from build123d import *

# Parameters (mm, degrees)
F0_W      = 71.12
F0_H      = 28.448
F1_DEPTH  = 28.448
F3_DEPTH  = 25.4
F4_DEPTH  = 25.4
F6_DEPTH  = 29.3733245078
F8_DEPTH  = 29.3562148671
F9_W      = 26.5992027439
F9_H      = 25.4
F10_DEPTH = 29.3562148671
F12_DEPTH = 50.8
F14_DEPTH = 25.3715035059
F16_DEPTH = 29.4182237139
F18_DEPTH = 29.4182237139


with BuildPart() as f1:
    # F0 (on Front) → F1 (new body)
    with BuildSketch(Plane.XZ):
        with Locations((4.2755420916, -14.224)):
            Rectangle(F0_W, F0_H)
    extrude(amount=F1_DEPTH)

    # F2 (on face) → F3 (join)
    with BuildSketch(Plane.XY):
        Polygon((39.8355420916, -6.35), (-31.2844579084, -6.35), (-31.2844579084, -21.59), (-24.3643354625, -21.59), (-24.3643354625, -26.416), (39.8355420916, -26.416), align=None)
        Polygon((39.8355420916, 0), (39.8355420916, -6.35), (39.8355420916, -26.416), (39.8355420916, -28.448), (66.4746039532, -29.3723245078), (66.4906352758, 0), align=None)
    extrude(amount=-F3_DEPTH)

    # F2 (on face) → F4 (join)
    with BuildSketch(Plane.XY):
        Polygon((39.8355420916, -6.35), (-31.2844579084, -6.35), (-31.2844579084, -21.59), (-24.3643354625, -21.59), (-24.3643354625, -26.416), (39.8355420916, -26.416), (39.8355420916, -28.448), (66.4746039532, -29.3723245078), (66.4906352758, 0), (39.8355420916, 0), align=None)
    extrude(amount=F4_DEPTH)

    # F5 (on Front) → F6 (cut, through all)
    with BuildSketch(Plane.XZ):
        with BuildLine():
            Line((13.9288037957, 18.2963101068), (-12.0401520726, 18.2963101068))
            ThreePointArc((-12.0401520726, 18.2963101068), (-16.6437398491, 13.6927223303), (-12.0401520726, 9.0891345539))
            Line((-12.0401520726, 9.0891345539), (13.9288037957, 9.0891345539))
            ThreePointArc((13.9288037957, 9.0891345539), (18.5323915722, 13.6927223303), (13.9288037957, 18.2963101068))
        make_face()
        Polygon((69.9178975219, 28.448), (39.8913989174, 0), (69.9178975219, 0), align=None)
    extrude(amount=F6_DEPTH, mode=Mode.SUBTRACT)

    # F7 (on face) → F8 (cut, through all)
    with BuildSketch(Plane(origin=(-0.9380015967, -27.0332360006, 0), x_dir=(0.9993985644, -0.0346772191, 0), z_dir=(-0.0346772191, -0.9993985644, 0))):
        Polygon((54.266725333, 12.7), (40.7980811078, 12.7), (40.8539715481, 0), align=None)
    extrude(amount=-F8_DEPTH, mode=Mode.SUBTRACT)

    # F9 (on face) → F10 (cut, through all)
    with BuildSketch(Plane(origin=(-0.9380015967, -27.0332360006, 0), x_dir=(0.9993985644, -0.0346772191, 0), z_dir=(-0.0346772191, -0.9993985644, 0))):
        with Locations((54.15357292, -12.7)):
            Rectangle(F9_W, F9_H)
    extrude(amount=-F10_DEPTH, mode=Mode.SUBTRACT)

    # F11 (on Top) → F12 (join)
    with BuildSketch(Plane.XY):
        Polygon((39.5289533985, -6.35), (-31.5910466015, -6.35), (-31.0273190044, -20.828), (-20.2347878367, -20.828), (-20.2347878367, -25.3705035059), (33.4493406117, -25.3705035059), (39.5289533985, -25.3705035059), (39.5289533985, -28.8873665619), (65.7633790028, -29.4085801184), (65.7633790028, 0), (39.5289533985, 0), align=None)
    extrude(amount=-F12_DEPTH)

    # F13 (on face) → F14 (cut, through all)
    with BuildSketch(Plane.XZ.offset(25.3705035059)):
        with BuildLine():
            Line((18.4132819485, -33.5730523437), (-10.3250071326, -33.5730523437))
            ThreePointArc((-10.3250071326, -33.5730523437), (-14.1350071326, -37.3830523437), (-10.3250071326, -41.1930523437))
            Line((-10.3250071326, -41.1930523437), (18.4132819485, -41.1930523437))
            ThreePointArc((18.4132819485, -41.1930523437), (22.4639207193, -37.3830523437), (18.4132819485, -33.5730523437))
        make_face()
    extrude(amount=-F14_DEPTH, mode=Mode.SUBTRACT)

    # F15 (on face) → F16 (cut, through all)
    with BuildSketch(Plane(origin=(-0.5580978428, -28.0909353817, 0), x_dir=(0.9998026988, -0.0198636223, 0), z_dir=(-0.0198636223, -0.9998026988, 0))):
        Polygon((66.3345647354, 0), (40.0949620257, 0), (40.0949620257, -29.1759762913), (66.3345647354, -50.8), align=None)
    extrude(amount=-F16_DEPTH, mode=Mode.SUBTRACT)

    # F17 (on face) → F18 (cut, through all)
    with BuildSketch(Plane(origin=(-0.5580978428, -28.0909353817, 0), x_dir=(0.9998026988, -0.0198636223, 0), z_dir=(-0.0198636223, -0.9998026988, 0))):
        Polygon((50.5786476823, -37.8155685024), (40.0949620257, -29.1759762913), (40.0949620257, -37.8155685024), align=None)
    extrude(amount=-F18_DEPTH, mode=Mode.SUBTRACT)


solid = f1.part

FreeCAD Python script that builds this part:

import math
import FreeCAD as App
import Part
import Sketcher
Q = App.Units.Quantity

doc = App.newDocument("Part")
params = doc.addObject("Spreadsheet::Sheet", "Params")
for row, (alias, value) in enumerate([
    ("sketch1_width", "2.8 in"),
    ("sketch1_height", "1.12 in"),
    ("pad1_length", "1.12 in"),
    ("sketch2_width", "2.8 in"),
    ("sketch2_height", "0.6 in"),
    ("sketch2_height2", "0.19 in"),
    ("sketch2_height3", "0.08 in"),
    ("sketch2_height4", "0.25 in"),
    ("pad2_length", "1 in"),
    ("sketch3_width", "2.8 in"),
    ("sketch3_height", "0.6 in"),
    ("sketch3_height2", "0.19 in"),
    ("sketch3_height3", "0.08 in"),
    ("sketch3_height4", "0.25 in"),
    ("pad3_length", "1 in"),
    ("sketch4_height", "1.12 in"),
    ("sketch6_height", "1 in"),
    ("sketch7_width", "2.8 in"),
    ("sketch7_height", "0.25 in"),
    ("pad4_length", "2 in"),
    ("sketch8_radius", "0.15 in"),
    ("sketch9_height", "2 in"),
], start=1):
    params.set(f"A{row}", alias)
    params.set(f"B{row}", "=" + value)
    params.setAlias(f"B{row}", alias)

body = doc.addObject("PartDesign::Body", "Body")

# Sketch on XZ plane
sketch1 = body.newObject("Sketcher::SketchObject", "Sketch")
sketch1.AttachmentSupport = (doc.getObject("XZ_Plane"), [""])
sketch1.MapMode = "FlatFace"
sketch1.addGeometry([
    Part.LineSegment(App.Vector(-31, 0, 0), App.Vector(-31, -28, 0)),
    Part.LineSegment(App.Vector(-31, -28, 0), App.Vector(40, -28, 0)),
    Part.LineSegment(App.Vector(40, -28, 0), App.Vector(40, 0, 0)),
    Part.LineSegment(App.Vector(40, 0, 0), App.Vector(-31, 0, 0)),
], False)
sketch1.addConstraint([
    Sketcher.Constraint("Coincident", 0, 2, 1, 1),
    Sketcher.Constraint("Coincident", 1, 2, 2, 1),
    Sketcher.Constraint("Coincident", 2, 2, 3, 1),
    Sketcher.Constraint("Coincident", 3, 2, 0, 1),
    Sketcher.Constraint("Vertical", 0),
    Sketcher.Constraint("Horizontal", 1),
    Sketcher.Constraint("Vertical", 2),
    Sketcher.Constraint("Horizontal", 3),
    Sketcher.Constraint("PointOnObject", 2, 2, -1),
    Sketcher.Constraint("DistanceX", 1, 1, 1, 2, Q("2.8 in")),
    Sketcher.Constraint("DistanceY", 0, 2, 0, 1, Q("1.12 in")),
    Sketcher.Constraint("DistanceX", 0, 2, -1, 1, Q("31.284458 mm")),
])
sketch1.setExpression("Constraints[9]", "Params.sketch1_width")
sketch1.setExpression("Constraints[10]", "Params.sketch1_height")
pad1 = body.newObject("PartDesign::Pad", "Pad")
pad1.Profile = sketch1
pad1.setExpression("Length", "Params.pad1_length")

# Sketch on XY plane
sketch2 = body.newObject("Sketcher::SketchObject", "Sketch001")
sketch2.AttachmentSupport = (doc.getObject("XY_Plane"), [""])
sketch2.MapMode = "FlatFace"
sketch2.addGeometry([
    Part.LineSegment(App.Vector(39.8, -6.3, 0), App.Vector(-31.3, -6.3, 0)),  # 0
    Part.LineSegment(App.Vector(-31.3, -6.3, 0), App.Vector(-31.3, -21.6, 0)),  # 1
    Part.LineSegment(App.Vector(-31.3, -21.6, 0), App.Vector(-24.4, -21.6, 0)),  # 2
    Part.LineSegment(App.Vector(-24.4, -21.6, 0), App.Vector(-24.4, -26.4, 0)),  # 3
    Part.LineSegment(App.Vector(-24.4, -26.4, 0), App.Vector(39.8, -26.4, 0)),  # 4
    Part.LineSegment(App.Vector(39.8, -26.4, 0), App.Vector(39.8, -28.4, 0)),  # 5
    Part.LineSegment(App.Vector(39.8, -28.4, 0), App.Vector(66.5, -29.4, 0)),  # 6
    Part.LineSegment(App.Vector(66.5, -29.4, 0), App.Vector(66.5, 0, 0)),  # 7
    Part.LineSegment(App.Vector(66.5, 0, 0), App.Vector(39.8, 0, 0)),  # 8
    Part.LineSegment(App.Vector(39.8, 0, 0), App.Vector(39.8, -6.3, 0)),  # 9
], False)
sketch2.addConstraint([
    Sketcher.Constraint("Coincident", 0, 2, 1, 1),
    Sketcher.Constraint("Coincident", 1, 2, 2, 1),
    Sketcher.Constraint("Coincident", 2, 2, 3, 1),
    Sketcher.Constraint("Coincident", 3, 2, 4, 1),
    Sketcher.Constraint("Coincident", 4, 2, 5, 1),
    Sketcher.Constraint("Coincident", 5, 2, 6, 1),
    Sketcher.Constraint("Coincident", 6, 2, 7, 1),
    Sketcher.Constraint("Coincident", 7, 2, 8, 1),
    Sketcher.Constraint("Coincident", 8, 2, 9, 1),
    Sketcher.Constraint("Coincident", 9, 2, 0, 1),
    Sketcher.Constraint("Horizontal", 0),
    Sketcher.Constraint("Vertical", 1),
    Sketcher.Constraint("Horizontal", 2),
    Sketcher.Constraint("Vertical", 3),
    Sketcher.Constraint("Horizontal", 4),
    Sketcher.Constraint("Vertical", 5),
    Sketcher.Constraint("Horizontal", 8),
    Sketcher.Constraint("Vertical", 9),
    Sketcher.Constraint("PointOnObject", 7, 2, -1),
    Sketcher.Constraint("Vertical", 5, 2, 8, 2),
    Sketcher.Constraint("DistanceX", 0, 2, 0, 1, Q("2.8 in")),
    Sketcher.Constraint("DistanceY", 1, 2, 1, 1, Q("0.6 in")),
    Sketcher.Constraint("DistanceY", 3, 2, 3, 1, Q("0.19 in")),
    Sketcher.Constraint("DistanceY", 5, 2, 5, 1, Q("0.08 in")),
    Sketcher.Constraint("DistanceY", 9, 2, 9, 1, Q("0.25 in")),
    Sketcher.Constraint("Distance", 7, Q("29.372329 mm")),
    Sketcher.Constraint("DistanceX", 2, 1, 2, 2, Q("6.920122 mm")),
    Sketcher.Constraint("DistanceX", 8, 2, 8, 1, Q("26.655093 mm")),
    Sketcher.Constraint("DistanceX", 5, 2, 6, 2, Q("26.639062 mm")),
    Sketcher.Constraint("DistanceX", 0, 2, -1, 1, Q("31.284458 mm")),
])
sketch2.setExpression("Constraints[20]", "Params.sketch2_width")
sketch2.setExpression("Constraints[21]", "Params.sketch2_height")
sketch2.setExpression("Constraints[22]", "Params.sketch2_height2")
sketch2.setExpression("Constraints[23]", "Params.sketch2_height3")
sketch2.setExpression("Constraints[24]", "Params.sketch2_height4")
pad2 = body.newObject("PartDesign::Pad", "Pad001")
pad2.Profile = sketch2
pad2.setExpression("Length", "Params.pad2_length")
pad2.Reversed = True

# Sketch on XY plane
sketch3 = body.newObject("Sketcher::SketchObject", "Sketch002")
sketch3.AttachmentSupport = (doc.getObject("XY_Plane"), [""])
sketch3.MapMode = "FlatFace"
sketch3.addGeometry([
    Part.LineSegment(App.Vector(39.8, -6.3, 0), App.Vector(-31.3, -6.3, 0)),  # 0
    Part.LineSegment(App.Vector(-31.3, -6.3, 0), App.Vector(-31.3, -21.6, 0)),  # 1
    Part.LineSegment(App.Vector(-31.3, -21.6, 0), App.Vector(-24.4, -21.6, 0)),  # 2
    Part.LineSegment(App.Vector(-24.4, -21.6, 0), App.Vector(-24.4, -26.4, 0)),  # 3
    Part.LineSegment(App.Vector(-24.4, -26.4, 0), App.Vector(39.8, -26.4, 0)),  # 4
    Part.LineSegment(App.Vector(39.8, -26.4, 0), App.Vector(39.8, -28.4, 0)),  # 5
    Part.LineSegment(App.Vector(39.8, -28.4, 0), App.Vector(66.5, -29.4, 0)),  # 6
    Part.LineSegment(App.Vector(66.5, -29.4, 0), App.Vector(66.5, 0, 0)),  # 7
    Part.LineSegment(App.Vector(66.5, 0, 0), App.Vector(39.8, 0, 0)),  # 8
    Part.LineSegment(App.Vector(39.8, 0, 0), App.Vector(39.8, -6.3, 0)),  # 9
], False)
sketch3.addConstraint([
    Sketcher.Constraint("Coincident", 0, 2, 1, 1),
    Sketcher.Constraint("Coincident", 1, 2, 2, 1),
    Sketcher.Constraint("Coincident", 2, 2, 3, 1),
    Sketcher.Constraint("Coincident", 3, 2, 4, 1),
    Sketcher.Constraint("Coincident", 4, 2, 5, 1),
    Sketcher.Constraint("Coincident", 5, 2, 6, 1),
    Sketcher.Constraint("Coincident", 6, 2, 7, 1),
    Sketcher.Constraint("Coincident", 7, 2, 8, 1),
    Sketcher.Constraint("Coincident", 8, 2, 9, 1),
    Sketcher.Constraint("Coincident", 9, 2, 0, 1),
    Sketcher.Constraint("Horizontal", 0),
    Sketcher.Constraint("Vertical", 1),
    Sketcher.Constraint("Horizontal", 2),
    Sketcher.Constraint("Vertical", 3),
    Sketcher.Constraint("Horizontal", 4),
    Sketcher.Constraint("Vertical", 5),
    Sketcher.Constraint("Horizontal", 8),
    Sketcher.Constraint("Vertical", 9),
    Sketcher.Constraint("PointOnObject", 7, 2, -1),
    Sketcher.Constraint("Vertical", 5, 2, 8, 2),
    Sketcher.Constraint("DistanceX", 0, 2, 0, 1, Q("2.8 in")),
    Sketcher.Constraint("DistanceY", 1, 2, 1, 1, Q("0.6 in")),
    Sketcher.Constraint("DistanceY", 3, 2, 3, 1, Q("0.19 in")),
    Sketcher.Constraint("DistanceY", 5, 2, 5, 1, Q("0.08 in")),
    Sketcher.Constraint("DistanceY", 9, 2, 9, 1, Q("0.25 in")),
    Sketcher.Constraint("Distance", 7, Q("29.372329 mm")),
    Sketcher.Constraint("DistanceX", 2, 1, 2, 2, Q("6.920122 mm")),
    Sketcher.Constraint("DistanceX", 8, 2, 8, 1, Q("26.655093 mm")),
    Sketcher.Constraint("DistanceX", 5, 2, 6, 2, Q("26.639062 mm")),
    Sketcher.Constraint("DistanceX", 0, 2, -1, 1, Q("31.284458 mm")),
])
sketch3.setExpression("Constraints[20]", "Params.sketch3_width")
sketch3.setExpression("Constraints[21]", "Params.sketch3_height")
sketch3.setExpression("Constraints[22]", "Params.sketch3_height2")
sketch3.setExpression("Constraints[23]", "Params.sketch3_height3")
sketch3.setExpression("Constraints[24]", "Params.sketch3_height4")
pad3 = body.newObject("PartDesign::Pad", "Pad002")
pad3.Profile = sketch3
pad3.setExpression("Length", "Params.pad3_length")

# Sketch on XZ plane
sketch4 = body.newObject("Sketcher::SketchObject", "Sketch003")
sketch4.AttachmentSupport = (doc.getObject("XZ_Plane"), [""])
sketch4.MapMode = "FlatFace"
sketch4.addGeometry([
    Part.LineSegment(App.Vector(13.9, 18.3, 0), App.Vector(-12, 18.3, 0)),  # 0
    Part.ArcOfCircle(Part.Circle(App.Vector(-12, 13.7, 0), App.Vector(0, 0, 1), 4.6), math.radians(90), math.radians(270)),  # 1
    Part.LineSegment(App.Vector(-12, 9.1, 0), App.Vector(13.9, 9.1, 0)),  # 2
    Part.ArcOfCircle(Part.Circle(App.Vector(13.9, 13.7, 0), App.Vector(0, 0, 1), 4.6), math.radians(-90), math.radians(90)),  # 3
    Part.LineSegment(App.Vector(69.9, 28.4, 0), App.Vector(39.9, 0, 0)),  # 4
    Part.LineSegment(App.Vector(39.9, 0, 0), App.Vector(69.9, 0, 0)),  # 5
    Part.LineSegment(App.Vector(69.9, 0, 0), App.Vector(69.9, 28.4, 0)),  # 6
], False)
sketch4.addConstraint([
    Sketcher.Constraint("Tangent", 0, 2, 1, 1),
    Sketcher.Constraint("Tangent", 1, 2, 2, 1),
    Sketcher.Constraint("Tangent", 2, 2, 3, 1),
    Sketcher.Constraint("Tangent", 3, 2, 0, 1),
    Sketcher.Constraint("Coincident", 4, 2, 5, 1),
    Sketcher.Constraint("Coincident", 5, 2, 6, 1),
    Sketcher.Constraint("Coincident", 6, 2, 4, 1),
    Sketcher.Constraint("Horizontal", 0),
    Sketcher.Constraint("Horizontal", 2),
    Sketcher.Constraint("Horizontal", 5),
    Sketcher.Constraint("Vertical", 6),
    Sketcher.Constraint("PointOnObject", 4, 2, -1),
    Sketcher.Constraint("DistanceY", 6, 1, 6, 2, Q("1.12 in")),
    Sketcher.Constraint("DistanceX", 0, 2, 0, 1, Q("1.0223998 in")),
    Sketcher.Constraint("DistanceX", 5, 1, 5, 2, Q("30.026499 mm")),
    Sketcher.Constraint("Radius", 1, Q("4.603588 mm")),
    Sketcher.Constraint("DistanceX", -1, 1, 4, 2, Q("39.891399 mm")),
    Sketcher.Constraint("DistanceY", -1, 1, 0, 2, Q("18.29631 mm")),
    Sketcher.Constraint("DistanceX", 1, 2, 4, 2, Q("51.931551 mm")),
])
sketch4.setExpression("Constraints[12]", "Params.sketch4_height")
pocket1 = body.newObject("PartDesign::Pocket", "Pocket")
pocket1.Profile = sketch4
pocket1.Type = "ThroughAll"
pocket1.Reversed = True

# Sketch on an angled plane
sketch5 = body.newObject("Sketcher::SketchObject", "Sketch004")
sketch5.Placement = App.Placement(App.Vector(-0.938002, -27.033236, 0), App.Rotation(App.Vector(0.999398564, -0.034677219, 0), App.Vector(0, 0, 0.999999999), App.Vector(-0.034677219, -0.999398564, 0), "ZXY"))
sketch5.addGeometry([
    Part.LineSegment(App.Vector(54, 13, 0), App.Vector(41, 13, 0)),
    Part.LineSegment(App.Vector(41, 13, 0), App.Vector(41, 0, 0)),
    Part.LineSegment(App.Vector(41, 0, 0), App.Vector(54, 13, 0)),
], False)
sketch5.addConstraint([
    Sketcher.Constraint("Coincident", 0, 2, 1, 1),
    Sketcher.Constraint("Coincident", 1, 2, 2, 1),
    Sketcher.Constraint("Coincident", 2, 2, 0, 1),
    Sketcher.Constraint("Horizontal", 0),
    Sketcher.Constraint("PointOnObject", 1, 2, -1),
    Sketcher.Constraint("DistanceY", -1, 1, 0, 2, Q("0.5 in")),
    Sketcher.Constraint("DistanceX", 0, 2, 0, 1, Q("13.468644 mm")),
    Sketcher.Constraint("DistanceX", -1, 1, 0, 2, Q("40.798081 mm")),
    Sketcher.Constraint("DistanceX", -1, 1, 1, 2, Q("40.853972 mm")),
])
pocket2 = body.newObject("PartDesign::Pocket", "Pocket001")
pocket2.Profile = sketch5
pocket2.Type = "ThroughAll"

# Sketch on an angled plane
sketch6 = body.newObject("Sketcher::SketchObject", "Sketch005")
sketch6.Placement = App.Placement(App.Vector(-0.938002, -27.033236, 0), App.Rotation(App.Vector(0.999398564, -0.034677219, 0), App.Vector(0, 0, 0.999999999), App.Vector(-0.034677219, -0.999398564, 0), "ZXY"))
sketch6.addGeometry([
    Part.LineSegment(App.Vector(41, 0, 0), App.Vector(41, -25, 0)),
    Part.LineSegment(App.Vector(41, -25, 0), App.Vector(67, -25, 0)),
    Part.LineSegment(App.Vector(67, -25, 0), App.Vector(67, 0, 0)),
    Part.LineSegment(App.Vector(67, 0, 0), App.Vector(41, 0, 0)),
], False)
sketch6.addConstraint([
    Sketcher.Constraint("Coincident", 0, 2, 1, 1),
    Sketcher.Constraint("Coincident", 1, 2, 2, 1),
    Sketcher.Constraint("Coincident", 2, 2, 3, 1),
    Sketcher.Constraint("Coincident", 3, 2, 0, 1),
    Sketcher.Constraint("Vertical", 0),
    Sketcher.Constraint("Horizontal", 1),
    Sketcher.Constraint("Vertical", 2),
    Sketcher.Constraint("Horizontal", 3),
    Sketcher.Constraint("PointOnObject", 2, 2, -1),
    Sketcher.Constraint("DistanceY", 0, 2, 0, 1, Q("1 in")),
    Sketcher.Constraint("DistanceX", 1, 1, 1, 2, Q("26.599203 mm")),
    Sketcher.Constraint("DistanceX", -1, 1, 0, 2, Q("40.853972 mm")),
])
sketch6.setExpression("Constraints[9]", "Params.sketch6_height")
pocket3 = body.newObject("PartDesign::Pocket", "Pocket002")
pocket3.Profile = sketch6
pocket3.Type = "ThroughAll"

# Sketch on XY plane
sketch7 = body.newObject("Sketcher::SketchObject", "Sketch006")
sketch7.AttachmentSupport = (doc.getObject("XY_Plane"), [""])
sketch7.MapMode = "FlatFace"
sketch7.addGeometry([
    Part.LineSegment(App.Vector(39.5, -6.3, 0), App.Vector(-31.6, -6.3, 0)),  # 0
    Part.LineSegment(App.Vector(-31.6, -6.3, 0), App.Vector(-31, -20.8, 0)),  # 1
    Part.LineSegment(App.Vector(-31, -20.8, 0), App.Vector(-20.2, -20.8, 0)),  # 2
    Part.LineSegment(App.Vector(-20.2, -20.8, 0), App.Vector(-20.2, -25.4, 0)),  # 3
    Part.LineSegment(App.Vector(-20.2, -25.4, 0), App.Vector(39.5, -25.4, 0)),  # 4
    Part.LineSegment(App.Vector(39.5, -25.4, 0), App.Vector(39.5, -28.9, 0)),  # 5
    Part.LineSegment(App.Vector(39.5, -28.9, 0), App.Vector(65.8, -29.4, 0)),  # 6
    Part.LineSegment(App.Vector(65.8, -29.4, 0), App.Vector(65.8, 0, 0)),  # 7
    Part.LineSegment(App.Vector(65.8, 0, 0), App.Vector(39.5, 0, 0)),  # 8
    Part.LineSegment(App.Vector(39.5, 0, 0), App.Vector(39.5, -6.3, 0)),  # 9
], False)
sketch7.addConstraint([
    Sketcher.Constraint("Coincident", 0, 2, 1, 1),
    Sketcher.Constraint("Coincident", 1, 2, 2, 1),
    Sketcher.Constraint("Coincident", 2, 2, 3, 1),
    Sketcher.Constraint("Coincident", 3, 2, 4, 1),
    Sketcher.Constraint("Coincident", 4, 2, 5, 1),
    Sketcher.Constraint("Coincident", 5, 2, 6, 1),
    Sketcher.Constraint("Coincident", 6, 2, 7, 1),
    Sketcher.Constraint("Coincident", 7, 2, 8, 1),
    Sketcher.Constraint("Coincident", 8, 2, 9, 1),
    Sketcher.Constraint("Coincident", 9, 2, 0, 1),
    Sketcher.Constraint("Horizontal", 0),
    Sketcher.Constraint("Horizontal", 2),
    Sketcher.Constraint("Vertical", 3),
    Sketcher.Constraint("Horizontal", 4),
    Sketcher.Constraint("Vertical", 5),
    Sketcher.Constraint("Vertical", 7),
    Sketcher.Constraint("Horizontal", 8),
    Sketcher.Constraint("Vertical", 9),
    Sketcher.Constraint("PointOnObject", 7, 2, -1),
    Sketcher.Constraint("Vertical", 5, 2, 8, 2),
    Sketcher.Constraint("DistanceX", 0, 2, 0, 1, Q("2.8 in")),
    Sketcher.Constraint("DistanceY", 9, 2, 9, 1, Q("0.25 in")),
    Sketcher.Constraint("DistanceY", 1, 2, -1, 1, Q("0.82 in")),
    Sketcher.Constraint("DistanceX", 2, 1, 2, 2, Q("10.792531 mm")),
    Sketcher.Constraint("DistanceX", 4, 1, 4, 2, Q("59.763741 mm")),
    Sketcher.Constraint("DistanceY", 7, 1, 7, 2, Q("29.40858 mm")),
    Sketcher.Constraint("DistanceX", 1, 2, 6, 2, Q("96.790698 mm")),
    Sketcher.Constraint("DistanceY", 3, 2, 3, 1, Q("4.542504 mm")),
    Sketcher.Constraint("DistanceY", 5, 2, 5, 1, Q("3.516863 mm")),
    Sketcher.Constraint("DistanceX", 1, 2, -1, 1, Q("31.027319 mm")),
])
sketch7.setExpression("Constraints[20]", "Params.sketch7_width")
sketch7.setExpression("Constraints[21]", "Params.sketch7_height")
pad4 = body.newObject("PartDesign::Pad", "Pad003")
pad4.Profile = sketch7
pad4.setExpression("Length", "Params.pad4_length")
pad4.Reversed = True

# Sketch on XZ plane
sketch8 = body.newObject("Sketcher::SketchObject", "Sketch007")
sketch8.AttachmentSupport = (doc.getObject("XZ_Plane"), [""])
sketch8.MapMode = "FlatFace"
sketch8.AttachmentOffset = App.Placement(App.Vector(0, 0, 25.370504), App.Rotation())
sketch8.addGeometry([
    Part.LineSegment(App.Vector(18.4, -33.6, 0), App.Vector(-10.3, -33.6, 0)),
    Part.ArcOfCircle(Part.Circle(App.Vector(-10.3, -37.4, 0), App.Vector(0, 0, 1), 3.8), math.radians(90), math.radians(270)),
    Part.LineSegment(App.Vector(-10.3, -41.2, 0), App.Vector(18.4, -41.2, 0)),
    Part.ArcOfCircle(Part.Circle(App.Vector(18.6, -37.4, 0), App.Vector(0, 0, 1), 3.8), math.radians(-94), math.radians(94)),
], False)
sketch8.addConstraint([
    Sketcher.Constraint("Tangent", 0, 2, 1, 1),
    Sketcher.Constraint("Tangent", 1, 2, 2, 1),
    Sketcher.Constraint("Coincident", 2, 2, 3, 1),
    Sketcher.Constraint("Coincident", 3, 2, 0, 1),
    Sketcher.Constraint("Horizontal", 0),
    Sketcher.Constraint("Horizontal", 2),
    Sketcher.Constraint("Horizontal", 1, 3, 3, 3),
    Sketcher.Constraint("Radius", 1, Q("0.15 in")),
    Sketcher.Constraint("Radius", 3, Q("3.817148 mm")),
    Sketcher.Constraint("DistanceX", 0, 2, 0, 1, Q("28.738289 mm")),
    Sketcher.Constraint("DistanceX", -1, 1, 2, 2, Q("18.413282 mm")),
    Sketcher.Constraint("DistanceY", 1, 3, -1, 1, Q("37.383052 mm")),
])
sketch8.setExpression("Constraints[7]", "Params.sketch8_radius")
pocket4 = body.newObject("PartDesign::Pocket", "Pocket003")
pocket4.Profile = sketch8
pocket4.Type = "ThroughAll"

# Sketch on an angled plane
sketch9 = body.newObject("Sketcher::SketchObject", "Sketch008")
sketch9.Placement = App.Placement(App.Vector(-0.558098, -28.090935, 0), App.Rotation(App.Vector(0.999802699, -0.019863622, 0), App.Vector(0, 0, 1), App.Vector(-0.019863622, -0.999802699, 0), "ZXY"))
sketch9.addGeometry([
    Part.LineSegment(App.Vector(66, 0, 0), App.Vector(40, 0, 0)),
    Part.LineSegment(App.Vector(40, 0, 0), App.Vector(40, -29, 0)),
    Part.LineSegment(App.Vector(40, -29, 0), App.Vector(66, -51, 0)),
    Part.LineSegment(App.Vector(66, -51, 0), App.Vector(66, 0, 0)),
], False)
sketch9.addConstraint([
    Sketcher.Constraint("Coincident", 0, 2, 1, 1),
    Sketcher.Constraint("Coincident", 1, 2, 2, 1),
    Sketcher.Constraint("Coincident", 2, 2, 3, 1),
    Sketcher.Constraint("Coincident", 3, 2, 0, 1),
    Sketcher.Constraint("Horizontal", 0),
    Sketcher.Constraint("Vertical", 1),
    Sketcher.Constraint("Vertical", 3),
    Sketcher.Constraint("PointOnObject", 0, 2, -1),
    Sketcher.Constraint("DistanceY", 3, 1, 3, 2, Q("2 in")),
    Sketcher.Constraint("DistanceX", 0, 2, 0, 1, Q("26.239603 mm")),
    Sketcher.Constraint("DistanceY", 1, 2, 1, 1, Q("29.175976 mm")),
    Sketcher.Constraint("DistanceX", -1, 1, 0, 2, Q("40.094962 mm")),
])
sketch9.setExpression("Constraints[8]", "Params.sketch9_height")
pocket5 = body.newObject("PartDesign::Pocket", "Pocket004")
pocket5.Profile = sketch9
pocket5.Type = "ThroughAll"

# Sketch on an angled plane
sketch10 = body.newObject("Sketcher::SketchObject", "Sketch009")
sketch10.Placement = App.Placement(App.Vector(-0.558098, -28.090935, 0), App.Rotation(App.Vector(0.999802699, -0.019863622, 0), App.Vector(0, 0, 1), App.Vector(-0.019863622, -0.999802699, 0), "ZXY"))
sketch10.addGeometry([
    Part.LineSegment(App.Vector(51, -38, 0), App.Vector(40, -29, 0)),
    Part.LineSegment(App.Vector(40, -29, 0), App.Vector(40, -38, 0)),
    Part.LineSegment(App.Vector(40, -38, 0), App.Vector(51, -38, 0)),
], False)
sketch10.addConstraint([
    Sketcher.Constraint("Coincident", 0, 2, 1, 1),
    Sketcher.Constraint("Coincident", 1, 2, 2, 1),
    Sketcher.Constraint("Coincident", 2, 2, 0, 1),
    Sketcher.Constraint("Vertical", 1),
    Sketcher.Constraint("Horizontal", 2),
    Sketcher.Constraint("DistanceX", 2, 1, 2, 2, Q("10.483686 mm")),
    Sketcher.Constraint("DistanceY", 1, 2, 1, 1, Q("8.639592 mm")),
    Sketcher.Constraint("DistanceY", 1, 2, -1, 1, Q("37.815569 mm")),
    Sketcher.Constraint("DistanceX", -1, 1, 0, 2, Q("40.094962 mm")),
])
pocket6 = body.newObject("PartDesign::Pocket", "Pocket005")
pocket6.Profile = sketch10
pocket6.Type = "ThroughAll"

doc.recompute()
